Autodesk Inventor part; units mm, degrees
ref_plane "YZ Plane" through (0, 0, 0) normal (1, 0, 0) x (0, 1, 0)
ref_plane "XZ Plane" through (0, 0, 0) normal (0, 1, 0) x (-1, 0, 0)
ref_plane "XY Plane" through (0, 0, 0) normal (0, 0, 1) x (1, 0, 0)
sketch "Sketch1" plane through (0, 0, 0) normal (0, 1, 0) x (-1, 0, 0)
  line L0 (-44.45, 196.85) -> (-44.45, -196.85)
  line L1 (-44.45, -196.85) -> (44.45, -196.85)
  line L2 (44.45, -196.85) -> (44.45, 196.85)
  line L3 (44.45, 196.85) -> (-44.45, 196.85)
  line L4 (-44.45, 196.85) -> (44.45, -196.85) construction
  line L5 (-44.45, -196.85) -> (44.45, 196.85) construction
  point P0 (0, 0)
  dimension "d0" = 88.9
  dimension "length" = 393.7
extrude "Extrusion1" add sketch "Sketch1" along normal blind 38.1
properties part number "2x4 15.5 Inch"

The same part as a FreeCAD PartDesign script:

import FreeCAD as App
import Part
import Sketcher
from FreeCAD import Vector
Q = App.Units.Quantity

doc = App.newDocument("Part")
body = doc.addObject("PartDesign::Body", "Body")

# Sketch on XZ plane
sketch1 = doc.addObject("Sketcher::SketchObject", "Sketch")
body.addObject(sketch1)
sketch1.AttachmentSupport = (doc.XZ_Plane, [""])
sketch1.MapMode = "FlatFace"
sketch1.addGeometry([
    Part.LineSegment(Vector(-44, 197, 0), Vector(44, 197, 0)),
    Part.LineSegment(Vector(44, 197, 0), Vector(44, -197, 0)),
    Part.LineSegment(Vector(44, -197, 0), Vector(-44, -197, 0)),
    Part.LineSegment(Vector(-44, -197, 0), Vector(-44, 197, 0)),
], False)
sketch1.addConstraint([
    Sketcher.Constraint("Coincident", 0, 2, 1, 1),
    Sketcher.Constraint("Coincident", 1, 2, 2, 1),
    Sketcher.Constraint("Coincident", 2, 2, 3, 1),
    Sketcher.Constraint("Coincident", 3, 2, 0, 1),
    Sketcher.Constraint("Horizontal", 0),
    Sketcher.Constraint("Vertical", 1),
    Sketcher.Constraint("Horizontal", 2),
    Sketcher.Constraint("Vertical", 3),
    Sketcher.Constraint("Symmetric", 0, 2, 2, 2, -1, 1),
    Sketcher.Constraint("DistanceX", 0, 1, 0, 2, Q("3.5 in")),
    Sketcher.Constraint("DistanceY", 1, 2, 1, 1, Q("15.5 in")),
])
pad1 = doc.addObject("PartDesign::Pad", "Pad")
body.addObject(pad1)
pad1.Profile = sketch1
pad1.Length = Q("1.5 in")
pad1.Reversed = True

doc.recompute()
